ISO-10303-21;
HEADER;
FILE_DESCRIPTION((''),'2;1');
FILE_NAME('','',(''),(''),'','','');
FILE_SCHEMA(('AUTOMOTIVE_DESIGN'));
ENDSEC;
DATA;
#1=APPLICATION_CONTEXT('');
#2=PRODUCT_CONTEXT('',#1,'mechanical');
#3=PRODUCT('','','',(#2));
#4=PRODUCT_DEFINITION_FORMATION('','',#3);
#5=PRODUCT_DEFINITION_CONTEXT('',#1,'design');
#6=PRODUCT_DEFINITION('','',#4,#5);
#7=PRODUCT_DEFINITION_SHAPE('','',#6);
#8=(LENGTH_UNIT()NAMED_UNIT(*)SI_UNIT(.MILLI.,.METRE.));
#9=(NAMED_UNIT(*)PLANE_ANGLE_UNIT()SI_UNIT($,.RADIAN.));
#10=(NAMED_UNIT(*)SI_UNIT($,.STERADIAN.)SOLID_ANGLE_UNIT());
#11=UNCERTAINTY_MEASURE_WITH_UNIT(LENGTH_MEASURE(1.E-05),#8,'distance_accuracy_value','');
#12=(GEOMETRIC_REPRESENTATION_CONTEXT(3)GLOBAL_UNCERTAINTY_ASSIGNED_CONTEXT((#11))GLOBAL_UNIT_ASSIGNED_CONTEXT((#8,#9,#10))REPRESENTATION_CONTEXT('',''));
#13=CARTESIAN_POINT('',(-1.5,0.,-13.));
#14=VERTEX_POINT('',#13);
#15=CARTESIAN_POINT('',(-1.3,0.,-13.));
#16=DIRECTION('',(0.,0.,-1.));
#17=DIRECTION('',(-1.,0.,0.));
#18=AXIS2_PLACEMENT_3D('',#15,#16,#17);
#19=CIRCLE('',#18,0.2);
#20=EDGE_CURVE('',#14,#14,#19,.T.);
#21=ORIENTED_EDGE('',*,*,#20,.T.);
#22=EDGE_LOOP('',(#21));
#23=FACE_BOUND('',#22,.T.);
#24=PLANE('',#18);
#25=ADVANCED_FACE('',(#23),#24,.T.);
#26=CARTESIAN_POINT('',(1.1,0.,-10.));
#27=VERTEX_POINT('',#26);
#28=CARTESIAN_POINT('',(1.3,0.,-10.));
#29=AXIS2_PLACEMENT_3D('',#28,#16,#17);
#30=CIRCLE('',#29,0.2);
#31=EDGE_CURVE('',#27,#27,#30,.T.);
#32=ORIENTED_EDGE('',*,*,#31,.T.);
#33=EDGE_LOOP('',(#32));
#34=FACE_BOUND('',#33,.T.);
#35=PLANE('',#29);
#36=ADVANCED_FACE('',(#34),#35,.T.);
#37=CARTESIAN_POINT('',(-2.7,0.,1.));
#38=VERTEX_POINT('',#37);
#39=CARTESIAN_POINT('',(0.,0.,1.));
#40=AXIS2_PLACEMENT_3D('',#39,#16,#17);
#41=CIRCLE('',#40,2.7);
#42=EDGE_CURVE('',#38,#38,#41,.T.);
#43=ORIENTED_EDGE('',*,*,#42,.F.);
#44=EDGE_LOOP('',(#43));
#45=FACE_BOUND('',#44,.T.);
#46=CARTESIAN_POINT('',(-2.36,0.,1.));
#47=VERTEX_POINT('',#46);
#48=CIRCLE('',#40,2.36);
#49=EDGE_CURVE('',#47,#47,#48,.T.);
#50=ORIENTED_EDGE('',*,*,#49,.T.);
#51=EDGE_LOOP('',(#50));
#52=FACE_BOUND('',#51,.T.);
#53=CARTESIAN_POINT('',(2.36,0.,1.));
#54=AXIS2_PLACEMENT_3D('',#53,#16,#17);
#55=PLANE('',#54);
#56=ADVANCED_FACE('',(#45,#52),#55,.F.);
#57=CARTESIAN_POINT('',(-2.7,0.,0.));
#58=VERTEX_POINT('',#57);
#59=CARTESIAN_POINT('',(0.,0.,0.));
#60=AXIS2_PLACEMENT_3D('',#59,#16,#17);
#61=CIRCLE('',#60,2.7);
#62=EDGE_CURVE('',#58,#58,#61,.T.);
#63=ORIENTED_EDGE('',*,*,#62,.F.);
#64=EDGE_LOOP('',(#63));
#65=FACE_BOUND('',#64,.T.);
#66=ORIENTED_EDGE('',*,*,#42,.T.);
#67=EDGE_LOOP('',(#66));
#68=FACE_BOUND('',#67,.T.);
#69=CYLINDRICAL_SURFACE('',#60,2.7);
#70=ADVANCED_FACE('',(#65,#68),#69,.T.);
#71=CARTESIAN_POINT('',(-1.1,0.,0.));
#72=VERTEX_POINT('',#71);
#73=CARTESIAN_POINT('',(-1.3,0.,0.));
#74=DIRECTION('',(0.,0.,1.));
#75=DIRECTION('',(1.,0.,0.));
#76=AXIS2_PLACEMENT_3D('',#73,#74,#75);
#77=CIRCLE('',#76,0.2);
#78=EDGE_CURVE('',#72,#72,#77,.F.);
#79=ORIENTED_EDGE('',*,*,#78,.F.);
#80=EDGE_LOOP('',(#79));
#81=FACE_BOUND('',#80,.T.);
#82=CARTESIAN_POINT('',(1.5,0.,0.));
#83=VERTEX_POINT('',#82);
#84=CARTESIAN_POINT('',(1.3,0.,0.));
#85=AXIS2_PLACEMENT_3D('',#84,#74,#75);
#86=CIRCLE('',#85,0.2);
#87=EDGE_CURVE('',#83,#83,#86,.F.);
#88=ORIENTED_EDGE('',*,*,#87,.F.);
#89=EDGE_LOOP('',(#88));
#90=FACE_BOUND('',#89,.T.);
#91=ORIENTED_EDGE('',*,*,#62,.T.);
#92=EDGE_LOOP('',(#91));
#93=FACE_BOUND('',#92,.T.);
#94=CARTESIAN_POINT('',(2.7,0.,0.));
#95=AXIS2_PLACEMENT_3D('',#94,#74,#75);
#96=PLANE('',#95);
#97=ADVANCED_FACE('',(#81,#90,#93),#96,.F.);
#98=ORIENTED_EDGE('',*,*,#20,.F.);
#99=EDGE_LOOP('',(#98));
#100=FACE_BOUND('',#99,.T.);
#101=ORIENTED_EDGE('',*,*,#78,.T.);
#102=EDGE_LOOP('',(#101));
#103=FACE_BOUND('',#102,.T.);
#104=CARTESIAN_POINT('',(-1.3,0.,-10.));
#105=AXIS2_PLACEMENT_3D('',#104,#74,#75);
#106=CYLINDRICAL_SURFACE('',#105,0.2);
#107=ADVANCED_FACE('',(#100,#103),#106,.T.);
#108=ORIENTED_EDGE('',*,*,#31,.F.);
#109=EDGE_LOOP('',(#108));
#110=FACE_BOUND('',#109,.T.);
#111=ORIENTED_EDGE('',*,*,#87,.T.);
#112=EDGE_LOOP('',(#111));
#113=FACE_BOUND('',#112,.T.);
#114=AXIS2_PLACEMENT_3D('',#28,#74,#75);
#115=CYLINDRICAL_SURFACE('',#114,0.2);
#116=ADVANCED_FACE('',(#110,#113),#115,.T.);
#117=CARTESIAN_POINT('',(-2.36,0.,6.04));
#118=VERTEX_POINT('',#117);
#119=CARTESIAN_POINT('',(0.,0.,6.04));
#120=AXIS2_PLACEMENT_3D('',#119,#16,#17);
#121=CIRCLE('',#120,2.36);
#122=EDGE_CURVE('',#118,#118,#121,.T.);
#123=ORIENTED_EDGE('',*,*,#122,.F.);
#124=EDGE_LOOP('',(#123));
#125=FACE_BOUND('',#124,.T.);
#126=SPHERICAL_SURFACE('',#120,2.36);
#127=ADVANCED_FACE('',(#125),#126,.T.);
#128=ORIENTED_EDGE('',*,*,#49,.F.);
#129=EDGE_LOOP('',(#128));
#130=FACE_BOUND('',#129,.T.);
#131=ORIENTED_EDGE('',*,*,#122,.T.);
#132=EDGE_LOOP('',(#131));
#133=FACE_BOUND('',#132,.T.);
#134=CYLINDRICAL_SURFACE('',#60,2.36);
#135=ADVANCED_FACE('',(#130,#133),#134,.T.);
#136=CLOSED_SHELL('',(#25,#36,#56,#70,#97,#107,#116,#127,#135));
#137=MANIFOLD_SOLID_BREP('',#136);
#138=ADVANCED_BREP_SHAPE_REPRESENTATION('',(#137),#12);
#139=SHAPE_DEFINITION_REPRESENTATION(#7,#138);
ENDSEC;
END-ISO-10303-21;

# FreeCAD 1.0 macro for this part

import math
import FreeCAD as App
import Part
import Sketcher
Q = App.Units.Quantity

doc = App.newDocument("Part")
body = doc.addObject("PartDesign::Body", "Body")

# Sketch on XZ plane
sketch1 = doc.addObject("Sketcher::SketchObject", "Sketch")
body.addObject(sketch1)
sketch1.AttachmentSupport = (doc.XZ_Plane, [""])
sketch1.MapMode = "FlatFace"
sketch1.addGeometry([
    Part.LineSegment(App.Vector(2.36, 6.04, 0), App.Vector(2.36, 1, 0)),  # 0
    Part.LineSegment(App.Vector(2.36, 1, 0), App.Vector(2.7, 1, 0)),  # 1
    Part.LineSegment(App.Vector(2.7, 1, 0), App.Vector(2.7, 0, 0)),  # 2
    Part.LineSegment(App.Vector(2.7, 0, 0), App.Vector(0, 0, 0)),  # 3
    Part.LineSegment(App.Vector(0, 0, 0), App.Vector(0, 8.4, 0)),  # 4
    Part.ArcOfCircle(Part.Circle(App.Vector(0, 6.04, 0), App.Vector(0, 0, 1), 2.36), math.radians(0), math.radians(90)),  # 5
], False)
sketch1.addConstraint([
    Sketcher.Constraint("Coincident", 0, 2, 1, 1),
    Sketcher.Constraint("Coincident", 1, 2, 2, 1),
    Sketcher.Constraint("Coincident", 2, 2, 3, 1),
    Sketcher.Constraint("Coincident", 3, 2, 4, 1),
    Sketcher.Constraint("Coincident", 4, 2, 5, 2),
    Sketcher.Constraint("Tangent", 5, 1, 0, 1),
    Sketcher.Constraint("Vertical", 0),
    Sketcher.Constraint("Horizontal", 1),
    Sketcher.Constraint("Vertical", 2),
    Sketcher.Constraint("Horizontal", 3),
    Sketcher.Constraint("Vertical", 4),
    Sketcher.Constraint("Coincident", 3, 2, -1, 1),
    Sketcher.Constraint("PointOnObject", 5, 3, -2),
    Sketcher.Constraint("DistanceY", 2, 2, 2, 1, Q("1 mm")),
    Sketcher.Constraint("Radius", 5, Q("2.36 mm")),
    Sketcher.Constraint("DistanceX", 3, 2, 3, 1, Q("2.7 mm")),
    Sketcher.Constraint("DistanceY", 4, 1, 4, 2, Q("8.4 mm")),
])
revolution = doc.addObject("PartDesign::Revolution", "Revolution")
body.addObject(revolution)
revolution.Profile = sketch1
revolution.ReferenceAxis = (sketch1, ["V_Axis"])
revolution.Angle = 360

# Sketch on XY plane
sketch2 = doc.addObject("Sketcher::SketchObject", "Sketch001")
body.addObject(sketch2)
sketch2.AttachmentSupport = (doc.XY_Plane, [""])
sketch2.MapMode = "FlatFace"
sketch2.addGeometry([
    Part.Circle(App.Vector(-1.3, 0, 0), App.Vector(0, 0, 1), 0.2),
    Part.Circle(App.Vector(1.3, 0, 0), App.Vector(0, 0, 1), 0.2),
], False)
sketch2.addConstraint([
    Sketcher.Constraint("Equal", 0, 1),
    Sketcher.Constraint("Symmetric", 0, 3, 1, 3, -1, 1),
    Sketcher.Constraint("PointOnObject", 0, 3, -1),
    Sketcher.Constraint("Diameter", 0, Q("0.4 mm")),
    Sketcher.Constraint("DistanceX", 0, 3, -1, 1, Q("1.3 mm")),
])
pad1 = doc.addObject("PartDesign::Pad", "Pad")
body.addObject(pad1)
pad1.Profile = sketch2
pad1.Length = 10
pad1.Reversed = True

# Sketch on XY plane
sketch3 = doc.addObject("Sketcher::SketchObject", "Sketch002")
body.addObject(sketch3)
sketch3.AttachmentSupport = (doc.XY_Plane, [""])
sketch3.MapMode = "FlatFace"
sketch3.AttachmentOffset = App.Placement(App.Vector(0, 0, -10), App.Rotation())
sketch3.addGeometry(Part.Circle(App.Vector(-1.3, 0, 0), App.Vector(0, 0, 1), 0.2), False)
sketch3.addConstraint([
    Sketcher.Constraint("PointOnObject", 0, 3, -1),
    Sketcher.Constraint("Diameter", 0, Q("0.4 mm")),
    Sketcher.Constraint("DistanceX", 0, 3, -1, 1, Q("1.3 mm")),
])
pad2 = doc.addObject("PartDesign::Pad", "Pad001")
body.addObject(pad2)
pad2.Profile = sketch3
pad2.Length = 3
pad2.Reversed = True

doc.recompute()
